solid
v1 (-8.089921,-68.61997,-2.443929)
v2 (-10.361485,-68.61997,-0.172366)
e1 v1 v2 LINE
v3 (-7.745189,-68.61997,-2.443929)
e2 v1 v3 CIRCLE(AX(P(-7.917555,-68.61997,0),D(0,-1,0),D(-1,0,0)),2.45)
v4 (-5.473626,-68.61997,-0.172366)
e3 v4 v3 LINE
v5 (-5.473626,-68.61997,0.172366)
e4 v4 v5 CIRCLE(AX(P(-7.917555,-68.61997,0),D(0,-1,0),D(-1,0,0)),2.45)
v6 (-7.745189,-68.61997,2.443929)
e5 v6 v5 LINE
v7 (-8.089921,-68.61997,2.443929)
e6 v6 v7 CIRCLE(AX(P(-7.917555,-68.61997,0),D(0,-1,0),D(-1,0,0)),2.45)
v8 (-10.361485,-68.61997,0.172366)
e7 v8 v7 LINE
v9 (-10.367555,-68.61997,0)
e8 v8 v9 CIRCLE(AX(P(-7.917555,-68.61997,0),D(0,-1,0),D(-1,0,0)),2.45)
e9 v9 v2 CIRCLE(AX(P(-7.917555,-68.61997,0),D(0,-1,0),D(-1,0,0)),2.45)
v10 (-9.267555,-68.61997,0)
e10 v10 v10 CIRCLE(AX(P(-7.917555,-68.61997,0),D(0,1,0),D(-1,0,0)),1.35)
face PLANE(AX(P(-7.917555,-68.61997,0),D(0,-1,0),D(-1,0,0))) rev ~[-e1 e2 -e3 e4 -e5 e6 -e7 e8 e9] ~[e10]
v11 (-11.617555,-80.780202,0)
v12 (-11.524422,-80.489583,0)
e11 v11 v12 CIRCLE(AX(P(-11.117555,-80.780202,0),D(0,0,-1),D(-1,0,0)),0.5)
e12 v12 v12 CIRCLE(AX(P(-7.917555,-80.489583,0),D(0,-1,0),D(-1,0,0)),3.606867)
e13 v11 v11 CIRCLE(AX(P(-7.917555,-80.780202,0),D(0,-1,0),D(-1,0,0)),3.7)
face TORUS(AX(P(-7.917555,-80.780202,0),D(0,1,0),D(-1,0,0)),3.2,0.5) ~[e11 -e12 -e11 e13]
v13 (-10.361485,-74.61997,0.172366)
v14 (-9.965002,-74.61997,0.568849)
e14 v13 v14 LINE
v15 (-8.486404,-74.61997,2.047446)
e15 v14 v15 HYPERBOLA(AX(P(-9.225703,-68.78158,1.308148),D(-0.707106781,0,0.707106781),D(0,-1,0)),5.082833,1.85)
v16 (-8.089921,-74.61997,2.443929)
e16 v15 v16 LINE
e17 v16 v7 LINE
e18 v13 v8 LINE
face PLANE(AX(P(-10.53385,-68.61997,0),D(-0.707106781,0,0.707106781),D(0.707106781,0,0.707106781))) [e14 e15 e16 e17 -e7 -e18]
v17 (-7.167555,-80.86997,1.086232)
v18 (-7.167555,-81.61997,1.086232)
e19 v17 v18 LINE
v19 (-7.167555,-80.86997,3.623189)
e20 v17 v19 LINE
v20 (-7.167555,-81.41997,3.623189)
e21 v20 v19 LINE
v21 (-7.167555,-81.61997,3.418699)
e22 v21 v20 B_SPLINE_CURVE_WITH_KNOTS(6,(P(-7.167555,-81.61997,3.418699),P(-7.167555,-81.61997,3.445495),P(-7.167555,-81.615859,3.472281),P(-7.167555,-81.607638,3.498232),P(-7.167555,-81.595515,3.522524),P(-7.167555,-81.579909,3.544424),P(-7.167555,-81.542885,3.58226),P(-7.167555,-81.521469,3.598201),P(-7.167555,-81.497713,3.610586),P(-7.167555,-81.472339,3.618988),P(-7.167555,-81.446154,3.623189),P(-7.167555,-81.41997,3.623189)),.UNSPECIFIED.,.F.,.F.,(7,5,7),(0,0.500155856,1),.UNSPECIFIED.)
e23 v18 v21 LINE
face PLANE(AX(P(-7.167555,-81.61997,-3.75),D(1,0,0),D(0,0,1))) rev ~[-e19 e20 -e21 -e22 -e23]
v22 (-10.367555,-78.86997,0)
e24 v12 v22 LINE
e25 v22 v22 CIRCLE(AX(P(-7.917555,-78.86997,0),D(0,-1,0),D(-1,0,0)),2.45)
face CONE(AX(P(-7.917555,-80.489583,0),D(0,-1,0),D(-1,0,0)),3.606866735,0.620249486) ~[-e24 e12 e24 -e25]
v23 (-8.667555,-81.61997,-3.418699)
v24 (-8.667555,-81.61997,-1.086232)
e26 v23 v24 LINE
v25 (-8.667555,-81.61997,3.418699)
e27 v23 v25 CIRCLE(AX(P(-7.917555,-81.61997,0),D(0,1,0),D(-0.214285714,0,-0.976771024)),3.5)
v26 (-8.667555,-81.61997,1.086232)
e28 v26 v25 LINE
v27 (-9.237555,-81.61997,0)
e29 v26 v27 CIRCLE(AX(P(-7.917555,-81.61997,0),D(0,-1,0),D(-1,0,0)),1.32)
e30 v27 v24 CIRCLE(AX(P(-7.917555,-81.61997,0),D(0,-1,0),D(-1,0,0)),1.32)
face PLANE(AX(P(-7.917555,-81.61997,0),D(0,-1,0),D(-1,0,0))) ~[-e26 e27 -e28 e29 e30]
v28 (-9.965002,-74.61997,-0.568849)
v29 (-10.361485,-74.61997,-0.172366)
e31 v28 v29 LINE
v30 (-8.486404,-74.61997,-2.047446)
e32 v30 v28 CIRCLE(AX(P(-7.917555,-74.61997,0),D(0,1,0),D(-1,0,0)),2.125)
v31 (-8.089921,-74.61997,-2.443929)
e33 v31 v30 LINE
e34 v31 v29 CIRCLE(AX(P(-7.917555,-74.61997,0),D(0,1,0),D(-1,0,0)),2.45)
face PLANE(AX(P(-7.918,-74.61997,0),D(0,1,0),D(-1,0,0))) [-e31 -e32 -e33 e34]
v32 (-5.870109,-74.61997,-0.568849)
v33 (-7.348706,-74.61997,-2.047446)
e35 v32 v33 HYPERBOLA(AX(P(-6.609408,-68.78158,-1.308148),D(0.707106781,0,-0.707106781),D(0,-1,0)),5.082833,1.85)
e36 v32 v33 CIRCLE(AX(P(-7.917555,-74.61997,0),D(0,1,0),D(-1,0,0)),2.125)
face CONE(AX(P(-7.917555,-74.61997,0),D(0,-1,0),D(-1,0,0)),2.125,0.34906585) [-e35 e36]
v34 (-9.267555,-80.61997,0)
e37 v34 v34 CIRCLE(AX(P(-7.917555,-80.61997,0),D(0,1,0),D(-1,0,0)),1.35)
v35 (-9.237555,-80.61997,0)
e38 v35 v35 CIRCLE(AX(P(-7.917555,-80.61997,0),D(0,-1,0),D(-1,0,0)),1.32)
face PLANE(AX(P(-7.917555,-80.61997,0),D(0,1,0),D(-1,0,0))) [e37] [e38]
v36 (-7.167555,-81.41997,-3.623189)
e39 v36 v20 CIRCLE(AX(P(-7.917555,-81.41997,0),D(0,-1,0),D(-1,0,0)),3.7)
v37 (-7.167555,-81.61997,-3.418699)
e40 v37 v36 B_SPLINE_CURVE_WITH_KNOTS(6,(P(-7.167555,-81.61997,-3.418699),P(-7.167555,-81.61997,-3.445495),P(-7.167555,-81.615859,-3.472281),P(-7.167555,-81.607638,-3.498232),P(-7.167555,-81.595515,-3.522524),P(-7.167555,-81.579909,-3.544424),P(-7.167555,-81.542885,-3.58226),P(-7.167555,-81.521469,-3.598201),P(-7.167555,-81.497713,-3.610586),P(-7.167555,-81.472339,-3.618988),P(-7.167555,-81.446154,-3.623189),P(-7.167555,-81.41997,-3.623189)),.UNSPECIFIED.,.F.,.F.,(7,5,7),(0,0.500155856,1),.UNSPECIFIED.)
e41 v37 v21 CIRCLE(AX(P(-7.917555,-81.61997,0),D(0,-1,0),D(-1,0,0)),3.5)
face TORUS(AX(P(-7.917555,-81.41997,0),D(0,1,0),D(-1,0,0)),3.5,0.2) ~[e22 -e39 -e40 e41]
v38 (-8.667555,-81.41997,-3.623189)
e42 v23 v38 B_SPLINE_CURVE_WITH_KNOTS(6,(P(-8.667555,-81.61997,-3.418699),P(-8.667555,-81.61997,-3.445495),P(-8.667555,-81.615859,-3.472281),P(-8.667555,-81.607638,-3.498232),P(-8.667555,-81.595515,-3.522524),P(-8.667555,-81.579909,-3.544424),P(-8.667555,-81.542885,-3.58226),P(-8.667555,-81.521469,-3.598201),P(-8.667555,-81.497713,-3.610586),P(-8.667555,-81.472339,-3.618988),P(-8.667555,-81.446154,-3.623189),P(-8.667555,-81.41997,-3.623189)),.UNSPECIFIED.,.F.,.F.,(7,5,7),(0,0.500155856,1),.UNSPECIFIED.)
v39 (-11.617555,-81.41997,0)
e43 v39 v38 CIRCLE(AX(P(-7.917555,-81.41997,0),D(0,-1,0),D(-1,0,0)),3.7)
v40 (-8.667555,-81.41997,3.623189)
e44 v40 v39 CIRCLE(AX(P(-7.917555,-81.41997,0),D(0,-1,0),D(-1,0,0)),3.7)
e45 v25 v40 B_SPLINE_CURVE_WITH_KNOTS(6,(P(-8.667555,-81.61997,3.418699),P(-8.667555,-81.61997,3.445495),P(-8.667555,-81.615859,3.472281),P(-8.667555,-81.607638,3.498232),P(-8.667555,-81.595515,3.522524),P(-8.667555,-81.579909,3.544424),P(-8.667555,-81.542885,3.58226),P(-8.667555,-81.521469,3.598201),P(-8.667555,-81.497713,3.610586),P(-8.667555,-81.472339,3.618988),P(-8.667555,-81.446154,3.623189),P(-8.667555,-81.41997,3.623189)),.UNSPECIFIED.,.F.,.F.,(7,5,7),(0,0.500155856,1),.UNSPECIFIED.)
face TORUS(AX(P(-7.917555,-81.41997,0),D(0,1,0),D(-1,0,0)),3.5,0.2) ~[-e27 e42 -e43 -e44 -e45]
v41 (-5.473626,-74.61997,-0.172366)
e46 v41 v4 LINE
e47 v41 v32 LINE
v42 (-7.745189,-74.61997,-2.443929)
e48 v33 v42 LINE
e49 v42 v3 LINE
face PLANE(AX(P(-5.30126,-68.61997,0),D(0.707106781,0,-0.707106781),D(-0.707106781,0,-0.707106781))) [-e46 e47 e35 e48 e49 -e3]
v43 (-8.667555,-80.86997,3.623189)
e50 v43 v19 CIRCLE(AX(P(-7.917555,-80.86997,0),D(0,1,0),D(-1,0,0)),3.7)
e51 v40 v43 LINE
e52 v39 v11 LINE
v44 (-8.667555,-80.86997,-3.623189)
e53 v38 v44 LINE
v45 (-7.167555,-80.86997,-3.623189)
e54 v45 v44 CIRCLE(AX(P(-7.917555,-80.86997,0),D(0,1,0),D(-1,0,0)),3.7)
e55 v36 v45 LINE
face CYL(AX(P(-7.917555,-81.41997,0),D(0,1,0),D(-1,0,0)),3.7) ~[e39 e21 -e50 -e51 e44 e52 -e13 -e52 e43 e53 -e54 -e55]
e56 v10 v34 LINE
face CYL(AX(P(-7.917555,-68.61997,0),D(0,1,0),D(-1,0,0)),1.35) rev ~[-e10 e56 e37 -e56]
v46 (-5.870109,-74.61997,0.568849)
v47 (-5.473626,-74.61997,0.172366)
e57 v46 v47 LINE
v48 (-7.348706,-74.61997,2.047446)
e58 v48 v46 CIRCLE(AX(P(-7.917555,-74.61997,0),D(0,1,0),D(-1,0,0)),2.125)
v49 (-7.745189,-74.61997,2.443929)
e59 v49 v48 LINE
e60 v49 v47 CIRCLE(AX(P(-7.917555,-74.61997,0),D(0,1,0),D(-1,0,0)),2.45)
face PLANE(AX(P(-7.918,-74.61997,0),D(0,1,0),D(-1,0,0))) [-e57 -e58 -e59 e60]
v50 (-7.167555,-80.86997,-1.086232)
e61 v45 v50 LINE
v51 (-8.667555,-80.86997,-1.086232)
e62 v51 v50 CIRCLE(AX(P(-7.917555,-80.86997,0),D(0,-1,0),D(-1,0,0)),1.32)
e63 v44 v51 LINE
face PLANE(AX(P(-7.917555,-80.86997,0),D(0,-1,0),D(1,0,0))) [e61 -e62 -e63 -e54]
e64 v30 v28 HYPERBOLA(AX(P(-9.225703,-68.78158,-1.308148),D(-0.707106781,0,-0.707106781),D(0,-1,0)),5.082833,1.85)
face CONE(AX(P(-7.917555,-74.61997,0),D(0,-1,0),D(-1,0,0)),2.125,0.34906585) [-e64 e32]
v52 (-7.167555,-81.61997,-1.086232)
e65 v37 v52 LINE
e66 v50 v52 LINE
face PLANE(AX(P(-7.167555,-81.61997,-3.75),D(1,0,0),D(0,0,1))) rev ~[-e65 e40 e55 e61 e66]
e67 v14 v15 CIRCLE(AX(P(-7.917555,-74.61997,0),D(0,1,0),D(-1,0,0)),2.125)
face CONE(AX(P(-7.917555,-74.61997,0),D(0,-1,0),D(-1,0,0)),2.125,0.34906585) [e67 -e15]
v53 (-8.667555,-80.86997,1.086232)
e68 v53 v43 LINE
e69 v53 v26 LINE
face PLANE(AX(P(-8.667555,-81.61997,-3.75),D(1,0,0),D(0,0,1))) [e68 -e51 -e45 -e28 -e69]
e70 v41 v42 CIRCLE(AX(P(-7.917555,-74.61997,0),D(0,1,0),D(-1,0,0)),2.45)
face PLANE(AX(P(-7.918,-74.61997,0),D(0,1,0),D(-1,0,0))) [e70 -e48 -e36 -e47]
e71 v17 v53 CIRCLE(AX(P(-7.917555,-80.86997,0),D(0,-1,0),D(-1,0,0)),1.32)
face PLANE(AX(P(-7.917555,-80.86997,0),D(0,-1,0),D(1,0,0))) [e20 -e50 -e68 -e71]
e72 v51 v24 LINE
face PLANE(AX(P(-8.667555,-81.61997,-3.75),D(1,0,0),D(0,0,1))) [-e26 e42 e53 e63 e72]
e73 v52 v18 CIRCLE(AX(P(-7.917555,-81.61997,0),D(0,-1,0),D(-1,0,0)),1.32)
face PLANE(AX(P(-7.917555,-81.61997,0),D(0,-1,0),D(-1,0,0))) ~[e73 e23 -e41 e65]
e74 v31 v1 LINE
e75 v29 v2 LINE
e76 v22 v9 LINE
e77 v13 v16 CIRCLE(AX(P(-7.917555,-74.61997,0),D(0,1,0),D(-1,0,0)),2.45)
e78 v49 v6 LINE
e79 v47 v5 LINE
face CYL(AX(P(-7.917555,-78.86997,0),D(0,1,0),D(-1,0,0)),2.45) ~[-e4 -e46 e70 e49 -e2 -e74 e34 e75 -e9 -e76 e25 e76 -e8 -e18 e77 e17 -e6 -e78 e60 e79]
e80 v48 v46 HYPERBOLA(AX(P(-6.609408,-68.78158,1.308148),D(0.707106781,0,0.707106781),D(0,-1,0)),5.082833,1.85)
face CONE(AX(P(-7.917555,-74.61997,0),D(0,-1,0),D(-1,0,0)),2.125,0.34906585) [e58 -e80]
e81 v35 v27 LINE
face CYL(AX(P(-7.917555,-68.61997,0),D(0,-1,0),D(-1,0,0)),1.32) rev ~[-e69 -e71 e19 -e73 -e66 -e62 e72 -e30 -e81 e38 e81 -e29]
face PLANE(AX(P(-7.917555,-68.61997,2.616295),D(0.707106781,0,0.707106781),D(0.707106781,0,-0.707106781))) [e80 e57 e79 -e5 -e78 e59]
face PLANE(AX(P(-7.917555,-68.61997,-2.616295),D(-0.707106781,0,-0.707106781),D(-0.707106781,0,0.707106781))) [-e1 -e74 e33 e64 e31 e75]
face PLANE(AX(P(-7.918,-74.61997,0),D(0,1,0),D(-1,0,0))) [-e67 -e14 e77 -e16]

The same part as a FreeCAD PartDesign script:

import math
import FreeCAD as App
import Part
import Sketcher
from FreeCAD import Vector


def add_polygon(sketch, points):
    """Adds a closed chain of lines whose ends are joined by coincident constraints."""
    first, n = sketch.GeometryCount, len(points)
    for a, b in zip(points, points[1:] + points[:1]):
        sketch.addGeometry(Part.LineSegment(App.Vector(*a, 0), App.Vector(*b, 0)), False)
    for i in range(n):
        sketch.addConstraint(Sketcher.Constraint("Coincident", first + i, 2, first + (i + 1) % n, 1))

doc = App.newDocument("Part")
params = doc.addObject("Spreadsheet::Sheet", "Params")
for row, (alias, value) in enumerate([
    ("sketch1_radius", "0.2 mm"),
    ("sketch1_radius2", "0.5 mm"),
    ("sketch1_height", "13 mm"),
    ("sketch1_width", "2.18 mm"),
    ("sketch1_width2", "1.13 mm"),
    ("revolution_angle", "360 deg"),
    ("sketch2_length", "3.7 mm"),
    ("pocket1_length", "6 mm"),
    ("sketch3_diameter", "4.25 mm"),
    ("pad1_length", "2 mm"),
    ("pad1_taper", "-20 deg"),
    ("sketch4_diameter", "2.7 mm"),
    ("pocket2_length", "12 mm"),
    ("sketch5_width", "1.5 mm"),
    ("sketch5_height", "7.5 mm"),
    ("pocket3_length", "0.75 mm"),
], start=1):
    params.set(f"A{row}", alias)
    params.set(f"B{row}", "=" + value)
    params.setAlias(f"B{row}", alias)

body = doc.addObject("PartDesign::Body", "Body")

# Sketch on XY plane
sketch1 = body.newObject("Sketcher::SketchObject", "Sketch")
sketch1.AttachmentSupport = (doc.getObject("XY_Plane"), [""])
sketch1.MapMode = "FlatFace"
sketch1.addGeometry([
    Part.LineSegment(Vector(-6.6, -81.62, 0), Vector(-4.42, -81.62, 0)),  # 0
    Part.ArcOfCircle(Part.Circle(Vector(-4.42, -81.42, 0), Vector(0, 0, 1), 0.2), math.radians(-90), math.radians(0)),  # 1
    Part.LineSegment(Vector(-4.22, -81.42, 0), Vector(-4.22, -80.78, 0)),  # 2
    Part.ArcOfCircle(Part.Circle(Vector(-4.72, -80.78, 0), Vector(0, 0, 1), 0.5), math.radians(0), math.radians(36)),  # 3
    Part.LineSegment(Vector(-4.31, -80.49, 0), Vector(-5.47, -78.87, 0)),  # 4
    Part.LineSegment(Vector(-5.47, -78.87, 0), Vector(-5.47, -68.62, 0)),  # 5
    Part.LineSegment(Vector(-5.47, -68.62, 0), Vector(-6.6, -68.62, 0)),  # 6
    Part.LineSegment(Vector(-6.6, -68.62, 0), Vector(-6.6, -81.62, 0)),  # 7
], False)
sketch1.addGeometry(Part.LineSegment(Vector(-7.92, -68.62, 0), Vector(-7.92, -81.62, 0)), True)  # axis
sketch1.addConstraint([
    Sketcher.Constraint("Tangent", 0, 2, 1, 1),
    Sketcher.Constraint("Tangent", 1, 2, 2, 1),
    Sketcher.Constraint("Tangent", 2, 2, 3, 1),
    Sketcher.Constraint("Tangent", 3, 2, 4, 1),
    Sketcher.Constraint("Coincident", 4, 2, 5, 1),
    Sketcher.Constraint("Coincident", 5, 2, 6, 1),
    Sketcher.Constraint("Coincident", 6, 2, 7, 1),
    Sketcher.Constraint("Coincident", 7, 2, 0, 1),
    Sketcher.Constraint("Horizontal", 0),
    Sketcher.Constraint("Vertical", 2),
    Sketcher.Constraint("Vertical", 5),
    Sketcher.Constraint("Horizontal", 6),
    Sketcher.Constraint("Vertical", 7),
    Sketcher.Constraint("Vertical", 8),
    Sketcher.Constraint("Horizontal", 6, 2, 8, 1),
    Sketcher.Constraint("Horizontal", 7, 2, 8, 2),
    Sketcher.Constraint("Radius", 1, 0.2),
    Sketcher.Constraint("Radius", 3, 0.5),
    Sketcher.Constraint("DistanceY", 7, 2, 7, 1, 13.0),
    Sketcher.Constraint("DistanceX", 0, 1, 0, 2, 2.18),
    Sketcher.Constraint("DistanceX", 6, 2, 6, 1, 1.13),
    Sketcher.Constraint("DistanceY", 5, 1, 5, 2, 10.25),
    Sketcher.Constraint("DistanceX", 8, 1, 3, 3, 3.2),
    Sketcher.Constraint("Distance", 4, 1.990349),
    Sketcher.Constraint("DistanceY", 1, 3, -1, 1, 81.41997),
    Sketcher.Constraint("DistanceX", 3, 2, -1, 1, 4.310689),
])
sketch1.setExpression("Constraints[16]", "Params.sketch1_radius")
sketch1.setExpression("Constraints[17]", "Params.sketch1_radius2")
sketch1.setExpression("Constraints[18]", "Params.sketch1_height")
sketch1.setExpression("Constraints[19]", "Params.sketch1_width")
sketch1.setExpression("Constraints[20]", "Params.sketch1_width2")
revolution = body.newObject("PartDesign::Revolution", "Revolution")
revolution.Profile = sketch1
revolution.ReferenceAxis = (sketch1, ["Axis0"])
revolution.setExpression("Angle", "Params.revolution_angle")

# Sketch on XZ plane
sketch2 = body.newObject("Sketcher::SketchObject", "Sketch001")
sketch2.AttachmentSupport = (doc.getObject("XZ_Plane"), [""])
sketch2.MapMode = "FlatFace"
sketch2.AttachmentOffset = App.Placement(Vector(0, 0, 68.61997), App.Rotation())
add_polygon(sketch2, [(-1.5, 6.4), (-1.5, -6.4), (-14.3, -6.4), (-14.3, 6.4)])  # lines 0-3
add_polygon(sketch2, [(-7.9, -2.6), (-5.3, 0), (-7.9, 2.6), (-10.5, 0)])  # lines 4-7
sketch2.addConstraint([
    Sketcher.Constraint("Vertical", 0),
    Sketcher.Constraint("Horizontal", 1),
    Sketcher.Constraint("Vertical", 2),
    Sketcher.Constraint("Horizontal", 3),
    Sketcher.Constraint("Symmetric", 5, 2, 7, 2, -1),
    Sketcher.Constraint("PointOnObject", 4, 2, -1),
    Sketcher.Constraint("PointOnObject", 6, 2, -1),
    Sketcher.Constraint("Perpendicular", 4, 5),
    Sketcher.Constraint("Perpendicular", 5, 6),
    Sketcher.Constraint("Equal", 3, 0),
    Sketcher.Constraint("Distance", 4, 3.7),
    Sketcher.Constraint("DistanceX", 1, 2, 1, 1, 12.738),
    Sketcher.Constraint("DistanceX", 0, 2, -1, 1, 1.549),
    Sketcher.Constraint("DistanceY", 0, 2, -1, 1, 6.369),
    Sketcher.Constraint("DistanceX", 4, 2, -1, 1, 5.30126),
])
sketch2.setExpression("Constraints[18]", "Params.sketch2_length")
pocket1 = body.newObject("PartDesign::Pocket", "Pocket")
pocket1.Profile = sketch2
pocket1.setExpression("Length", "Params.pocket1_length")
pocket1.Reversed = True

# Sketch on XZ plane
sketch3 = body.newObject("Sketcher::SketchObject", "Sketch002")
sketch3.AttachmentSupport = (doc.getObject("XZ_Plane"), [""])
sketch3.MapMode = "FlatFace"
sketch3.AttachmentOffset = App.Placement(Vector(0, 0, 74.61997), App.Rotation())
sketch3.addGeometry(Part.Circle(Vector(-7.9, 0, 0), Vector(0, 0, 1), 2.1), False)
sketch3.addConstraint([
    Sketcher.Constraint("PointOnObject", 0, 3, -1),
    Sketcher.Constraint("Diameter", 0, 4.25),
    Sketcher.Constraint("DistanceX", 0, 3, -1, 1, 7.917555),
])
sketch3.setExpression("Constraints[1]", "Params.sketch3_diameter")
pad1 = body.newObject("PartDesign::Pad", "Pad")
pad1.Profile = sketch3
pad1.setExpression("Length", "Params.pad1_length")
pad1.Reversed = True
pad1.setExpression("TaperAngle", "Params.pad1_taper")

# Sketch on XZ plane
sketch4 = body.newObject("Sketcher::SketchObject", "Sketch003")
sketch4.AttachmentSupport = (doc.getObject("XZ_Plane"), [""])
sketch4.MapMode = "FlatFace"
sketch4.AttachmentOffset = App.Placement(Vector(0, 0, 68.61997), App.Rotation())
sketch4.addGeometry(Part.Circle(Vector(-7.9, 0, 0), Vector(0, 0, 1), 1.4), False)
sketch4.addConstraint([
    Sketcher.Constraint("PointOnObject", 0, 3, -1),
    Sketcher.Constraint("Diameter", 0, 2.7),
    Sketcher.Constraint("DistanceX", 0, 3, -1, 1, 7.917555),
])
sketch4.setExpression("Constraints[1]", "Params.sketch4_diameter")
pocket2 = body.newObject("PartDesign::Pocket", "Pocket001")
pocket2.Profile = sketch4
pocket2.setExpression("Length", "Params.pocket2_length")
pocket2.Reversed = True

# Sketch on XZ plane
sketch5 = body.newObject("Sketcher::SketchObject", "Sketch004")
sketch5.AttachmentSupport = (doc.getObject("XZ_Plane"), [""])
sketch5.MapMode = "FlatFace"
sketch5.AttachmentOffset = App.Placement(Vector(0, 0, 81.61997), App.Rotation())
add_polygon(sketch5, [(-8.7, 3.8), (-8.7, -3.8), (-7.2, -3.8), (-7.2, 3.8)])  # lines 0-3
sketch5.addConstraint([
    Sketcher.Constraint("Vertical", 0),
    Sketcher.Constraint("Horizontal", 1),
    Sketcher.Constraint("Vertical", 2),
    Sketcher.Constraint("Horizontal", 3),
    Sketcher.Constraint("DistanceX", 1, 1, 1, 2, 1.5),
    Sketcher.Constraint("DistanceY", 0, 2, 0, 1, 7.5),
    Sketcher.Constraint("DistanceY", 0, 2, -1, 1, 3.75),
    Sketcher.Constraint("DistanceX", 0, 2, -1, 1, 8.667555),
])
sketch5.setExpression("Constraints[8]", "Params.sketch5_width")
sketch5.setExpression("Constraints[9]", "Params.sketch5_height")
pocket3 = body.newObject("PartDesign::Pocket", "Pocket002")
pocket3.Profile = sketch5
pocket3.setExpression("Length", "Params.pocket3_length")

doc.recompute()
